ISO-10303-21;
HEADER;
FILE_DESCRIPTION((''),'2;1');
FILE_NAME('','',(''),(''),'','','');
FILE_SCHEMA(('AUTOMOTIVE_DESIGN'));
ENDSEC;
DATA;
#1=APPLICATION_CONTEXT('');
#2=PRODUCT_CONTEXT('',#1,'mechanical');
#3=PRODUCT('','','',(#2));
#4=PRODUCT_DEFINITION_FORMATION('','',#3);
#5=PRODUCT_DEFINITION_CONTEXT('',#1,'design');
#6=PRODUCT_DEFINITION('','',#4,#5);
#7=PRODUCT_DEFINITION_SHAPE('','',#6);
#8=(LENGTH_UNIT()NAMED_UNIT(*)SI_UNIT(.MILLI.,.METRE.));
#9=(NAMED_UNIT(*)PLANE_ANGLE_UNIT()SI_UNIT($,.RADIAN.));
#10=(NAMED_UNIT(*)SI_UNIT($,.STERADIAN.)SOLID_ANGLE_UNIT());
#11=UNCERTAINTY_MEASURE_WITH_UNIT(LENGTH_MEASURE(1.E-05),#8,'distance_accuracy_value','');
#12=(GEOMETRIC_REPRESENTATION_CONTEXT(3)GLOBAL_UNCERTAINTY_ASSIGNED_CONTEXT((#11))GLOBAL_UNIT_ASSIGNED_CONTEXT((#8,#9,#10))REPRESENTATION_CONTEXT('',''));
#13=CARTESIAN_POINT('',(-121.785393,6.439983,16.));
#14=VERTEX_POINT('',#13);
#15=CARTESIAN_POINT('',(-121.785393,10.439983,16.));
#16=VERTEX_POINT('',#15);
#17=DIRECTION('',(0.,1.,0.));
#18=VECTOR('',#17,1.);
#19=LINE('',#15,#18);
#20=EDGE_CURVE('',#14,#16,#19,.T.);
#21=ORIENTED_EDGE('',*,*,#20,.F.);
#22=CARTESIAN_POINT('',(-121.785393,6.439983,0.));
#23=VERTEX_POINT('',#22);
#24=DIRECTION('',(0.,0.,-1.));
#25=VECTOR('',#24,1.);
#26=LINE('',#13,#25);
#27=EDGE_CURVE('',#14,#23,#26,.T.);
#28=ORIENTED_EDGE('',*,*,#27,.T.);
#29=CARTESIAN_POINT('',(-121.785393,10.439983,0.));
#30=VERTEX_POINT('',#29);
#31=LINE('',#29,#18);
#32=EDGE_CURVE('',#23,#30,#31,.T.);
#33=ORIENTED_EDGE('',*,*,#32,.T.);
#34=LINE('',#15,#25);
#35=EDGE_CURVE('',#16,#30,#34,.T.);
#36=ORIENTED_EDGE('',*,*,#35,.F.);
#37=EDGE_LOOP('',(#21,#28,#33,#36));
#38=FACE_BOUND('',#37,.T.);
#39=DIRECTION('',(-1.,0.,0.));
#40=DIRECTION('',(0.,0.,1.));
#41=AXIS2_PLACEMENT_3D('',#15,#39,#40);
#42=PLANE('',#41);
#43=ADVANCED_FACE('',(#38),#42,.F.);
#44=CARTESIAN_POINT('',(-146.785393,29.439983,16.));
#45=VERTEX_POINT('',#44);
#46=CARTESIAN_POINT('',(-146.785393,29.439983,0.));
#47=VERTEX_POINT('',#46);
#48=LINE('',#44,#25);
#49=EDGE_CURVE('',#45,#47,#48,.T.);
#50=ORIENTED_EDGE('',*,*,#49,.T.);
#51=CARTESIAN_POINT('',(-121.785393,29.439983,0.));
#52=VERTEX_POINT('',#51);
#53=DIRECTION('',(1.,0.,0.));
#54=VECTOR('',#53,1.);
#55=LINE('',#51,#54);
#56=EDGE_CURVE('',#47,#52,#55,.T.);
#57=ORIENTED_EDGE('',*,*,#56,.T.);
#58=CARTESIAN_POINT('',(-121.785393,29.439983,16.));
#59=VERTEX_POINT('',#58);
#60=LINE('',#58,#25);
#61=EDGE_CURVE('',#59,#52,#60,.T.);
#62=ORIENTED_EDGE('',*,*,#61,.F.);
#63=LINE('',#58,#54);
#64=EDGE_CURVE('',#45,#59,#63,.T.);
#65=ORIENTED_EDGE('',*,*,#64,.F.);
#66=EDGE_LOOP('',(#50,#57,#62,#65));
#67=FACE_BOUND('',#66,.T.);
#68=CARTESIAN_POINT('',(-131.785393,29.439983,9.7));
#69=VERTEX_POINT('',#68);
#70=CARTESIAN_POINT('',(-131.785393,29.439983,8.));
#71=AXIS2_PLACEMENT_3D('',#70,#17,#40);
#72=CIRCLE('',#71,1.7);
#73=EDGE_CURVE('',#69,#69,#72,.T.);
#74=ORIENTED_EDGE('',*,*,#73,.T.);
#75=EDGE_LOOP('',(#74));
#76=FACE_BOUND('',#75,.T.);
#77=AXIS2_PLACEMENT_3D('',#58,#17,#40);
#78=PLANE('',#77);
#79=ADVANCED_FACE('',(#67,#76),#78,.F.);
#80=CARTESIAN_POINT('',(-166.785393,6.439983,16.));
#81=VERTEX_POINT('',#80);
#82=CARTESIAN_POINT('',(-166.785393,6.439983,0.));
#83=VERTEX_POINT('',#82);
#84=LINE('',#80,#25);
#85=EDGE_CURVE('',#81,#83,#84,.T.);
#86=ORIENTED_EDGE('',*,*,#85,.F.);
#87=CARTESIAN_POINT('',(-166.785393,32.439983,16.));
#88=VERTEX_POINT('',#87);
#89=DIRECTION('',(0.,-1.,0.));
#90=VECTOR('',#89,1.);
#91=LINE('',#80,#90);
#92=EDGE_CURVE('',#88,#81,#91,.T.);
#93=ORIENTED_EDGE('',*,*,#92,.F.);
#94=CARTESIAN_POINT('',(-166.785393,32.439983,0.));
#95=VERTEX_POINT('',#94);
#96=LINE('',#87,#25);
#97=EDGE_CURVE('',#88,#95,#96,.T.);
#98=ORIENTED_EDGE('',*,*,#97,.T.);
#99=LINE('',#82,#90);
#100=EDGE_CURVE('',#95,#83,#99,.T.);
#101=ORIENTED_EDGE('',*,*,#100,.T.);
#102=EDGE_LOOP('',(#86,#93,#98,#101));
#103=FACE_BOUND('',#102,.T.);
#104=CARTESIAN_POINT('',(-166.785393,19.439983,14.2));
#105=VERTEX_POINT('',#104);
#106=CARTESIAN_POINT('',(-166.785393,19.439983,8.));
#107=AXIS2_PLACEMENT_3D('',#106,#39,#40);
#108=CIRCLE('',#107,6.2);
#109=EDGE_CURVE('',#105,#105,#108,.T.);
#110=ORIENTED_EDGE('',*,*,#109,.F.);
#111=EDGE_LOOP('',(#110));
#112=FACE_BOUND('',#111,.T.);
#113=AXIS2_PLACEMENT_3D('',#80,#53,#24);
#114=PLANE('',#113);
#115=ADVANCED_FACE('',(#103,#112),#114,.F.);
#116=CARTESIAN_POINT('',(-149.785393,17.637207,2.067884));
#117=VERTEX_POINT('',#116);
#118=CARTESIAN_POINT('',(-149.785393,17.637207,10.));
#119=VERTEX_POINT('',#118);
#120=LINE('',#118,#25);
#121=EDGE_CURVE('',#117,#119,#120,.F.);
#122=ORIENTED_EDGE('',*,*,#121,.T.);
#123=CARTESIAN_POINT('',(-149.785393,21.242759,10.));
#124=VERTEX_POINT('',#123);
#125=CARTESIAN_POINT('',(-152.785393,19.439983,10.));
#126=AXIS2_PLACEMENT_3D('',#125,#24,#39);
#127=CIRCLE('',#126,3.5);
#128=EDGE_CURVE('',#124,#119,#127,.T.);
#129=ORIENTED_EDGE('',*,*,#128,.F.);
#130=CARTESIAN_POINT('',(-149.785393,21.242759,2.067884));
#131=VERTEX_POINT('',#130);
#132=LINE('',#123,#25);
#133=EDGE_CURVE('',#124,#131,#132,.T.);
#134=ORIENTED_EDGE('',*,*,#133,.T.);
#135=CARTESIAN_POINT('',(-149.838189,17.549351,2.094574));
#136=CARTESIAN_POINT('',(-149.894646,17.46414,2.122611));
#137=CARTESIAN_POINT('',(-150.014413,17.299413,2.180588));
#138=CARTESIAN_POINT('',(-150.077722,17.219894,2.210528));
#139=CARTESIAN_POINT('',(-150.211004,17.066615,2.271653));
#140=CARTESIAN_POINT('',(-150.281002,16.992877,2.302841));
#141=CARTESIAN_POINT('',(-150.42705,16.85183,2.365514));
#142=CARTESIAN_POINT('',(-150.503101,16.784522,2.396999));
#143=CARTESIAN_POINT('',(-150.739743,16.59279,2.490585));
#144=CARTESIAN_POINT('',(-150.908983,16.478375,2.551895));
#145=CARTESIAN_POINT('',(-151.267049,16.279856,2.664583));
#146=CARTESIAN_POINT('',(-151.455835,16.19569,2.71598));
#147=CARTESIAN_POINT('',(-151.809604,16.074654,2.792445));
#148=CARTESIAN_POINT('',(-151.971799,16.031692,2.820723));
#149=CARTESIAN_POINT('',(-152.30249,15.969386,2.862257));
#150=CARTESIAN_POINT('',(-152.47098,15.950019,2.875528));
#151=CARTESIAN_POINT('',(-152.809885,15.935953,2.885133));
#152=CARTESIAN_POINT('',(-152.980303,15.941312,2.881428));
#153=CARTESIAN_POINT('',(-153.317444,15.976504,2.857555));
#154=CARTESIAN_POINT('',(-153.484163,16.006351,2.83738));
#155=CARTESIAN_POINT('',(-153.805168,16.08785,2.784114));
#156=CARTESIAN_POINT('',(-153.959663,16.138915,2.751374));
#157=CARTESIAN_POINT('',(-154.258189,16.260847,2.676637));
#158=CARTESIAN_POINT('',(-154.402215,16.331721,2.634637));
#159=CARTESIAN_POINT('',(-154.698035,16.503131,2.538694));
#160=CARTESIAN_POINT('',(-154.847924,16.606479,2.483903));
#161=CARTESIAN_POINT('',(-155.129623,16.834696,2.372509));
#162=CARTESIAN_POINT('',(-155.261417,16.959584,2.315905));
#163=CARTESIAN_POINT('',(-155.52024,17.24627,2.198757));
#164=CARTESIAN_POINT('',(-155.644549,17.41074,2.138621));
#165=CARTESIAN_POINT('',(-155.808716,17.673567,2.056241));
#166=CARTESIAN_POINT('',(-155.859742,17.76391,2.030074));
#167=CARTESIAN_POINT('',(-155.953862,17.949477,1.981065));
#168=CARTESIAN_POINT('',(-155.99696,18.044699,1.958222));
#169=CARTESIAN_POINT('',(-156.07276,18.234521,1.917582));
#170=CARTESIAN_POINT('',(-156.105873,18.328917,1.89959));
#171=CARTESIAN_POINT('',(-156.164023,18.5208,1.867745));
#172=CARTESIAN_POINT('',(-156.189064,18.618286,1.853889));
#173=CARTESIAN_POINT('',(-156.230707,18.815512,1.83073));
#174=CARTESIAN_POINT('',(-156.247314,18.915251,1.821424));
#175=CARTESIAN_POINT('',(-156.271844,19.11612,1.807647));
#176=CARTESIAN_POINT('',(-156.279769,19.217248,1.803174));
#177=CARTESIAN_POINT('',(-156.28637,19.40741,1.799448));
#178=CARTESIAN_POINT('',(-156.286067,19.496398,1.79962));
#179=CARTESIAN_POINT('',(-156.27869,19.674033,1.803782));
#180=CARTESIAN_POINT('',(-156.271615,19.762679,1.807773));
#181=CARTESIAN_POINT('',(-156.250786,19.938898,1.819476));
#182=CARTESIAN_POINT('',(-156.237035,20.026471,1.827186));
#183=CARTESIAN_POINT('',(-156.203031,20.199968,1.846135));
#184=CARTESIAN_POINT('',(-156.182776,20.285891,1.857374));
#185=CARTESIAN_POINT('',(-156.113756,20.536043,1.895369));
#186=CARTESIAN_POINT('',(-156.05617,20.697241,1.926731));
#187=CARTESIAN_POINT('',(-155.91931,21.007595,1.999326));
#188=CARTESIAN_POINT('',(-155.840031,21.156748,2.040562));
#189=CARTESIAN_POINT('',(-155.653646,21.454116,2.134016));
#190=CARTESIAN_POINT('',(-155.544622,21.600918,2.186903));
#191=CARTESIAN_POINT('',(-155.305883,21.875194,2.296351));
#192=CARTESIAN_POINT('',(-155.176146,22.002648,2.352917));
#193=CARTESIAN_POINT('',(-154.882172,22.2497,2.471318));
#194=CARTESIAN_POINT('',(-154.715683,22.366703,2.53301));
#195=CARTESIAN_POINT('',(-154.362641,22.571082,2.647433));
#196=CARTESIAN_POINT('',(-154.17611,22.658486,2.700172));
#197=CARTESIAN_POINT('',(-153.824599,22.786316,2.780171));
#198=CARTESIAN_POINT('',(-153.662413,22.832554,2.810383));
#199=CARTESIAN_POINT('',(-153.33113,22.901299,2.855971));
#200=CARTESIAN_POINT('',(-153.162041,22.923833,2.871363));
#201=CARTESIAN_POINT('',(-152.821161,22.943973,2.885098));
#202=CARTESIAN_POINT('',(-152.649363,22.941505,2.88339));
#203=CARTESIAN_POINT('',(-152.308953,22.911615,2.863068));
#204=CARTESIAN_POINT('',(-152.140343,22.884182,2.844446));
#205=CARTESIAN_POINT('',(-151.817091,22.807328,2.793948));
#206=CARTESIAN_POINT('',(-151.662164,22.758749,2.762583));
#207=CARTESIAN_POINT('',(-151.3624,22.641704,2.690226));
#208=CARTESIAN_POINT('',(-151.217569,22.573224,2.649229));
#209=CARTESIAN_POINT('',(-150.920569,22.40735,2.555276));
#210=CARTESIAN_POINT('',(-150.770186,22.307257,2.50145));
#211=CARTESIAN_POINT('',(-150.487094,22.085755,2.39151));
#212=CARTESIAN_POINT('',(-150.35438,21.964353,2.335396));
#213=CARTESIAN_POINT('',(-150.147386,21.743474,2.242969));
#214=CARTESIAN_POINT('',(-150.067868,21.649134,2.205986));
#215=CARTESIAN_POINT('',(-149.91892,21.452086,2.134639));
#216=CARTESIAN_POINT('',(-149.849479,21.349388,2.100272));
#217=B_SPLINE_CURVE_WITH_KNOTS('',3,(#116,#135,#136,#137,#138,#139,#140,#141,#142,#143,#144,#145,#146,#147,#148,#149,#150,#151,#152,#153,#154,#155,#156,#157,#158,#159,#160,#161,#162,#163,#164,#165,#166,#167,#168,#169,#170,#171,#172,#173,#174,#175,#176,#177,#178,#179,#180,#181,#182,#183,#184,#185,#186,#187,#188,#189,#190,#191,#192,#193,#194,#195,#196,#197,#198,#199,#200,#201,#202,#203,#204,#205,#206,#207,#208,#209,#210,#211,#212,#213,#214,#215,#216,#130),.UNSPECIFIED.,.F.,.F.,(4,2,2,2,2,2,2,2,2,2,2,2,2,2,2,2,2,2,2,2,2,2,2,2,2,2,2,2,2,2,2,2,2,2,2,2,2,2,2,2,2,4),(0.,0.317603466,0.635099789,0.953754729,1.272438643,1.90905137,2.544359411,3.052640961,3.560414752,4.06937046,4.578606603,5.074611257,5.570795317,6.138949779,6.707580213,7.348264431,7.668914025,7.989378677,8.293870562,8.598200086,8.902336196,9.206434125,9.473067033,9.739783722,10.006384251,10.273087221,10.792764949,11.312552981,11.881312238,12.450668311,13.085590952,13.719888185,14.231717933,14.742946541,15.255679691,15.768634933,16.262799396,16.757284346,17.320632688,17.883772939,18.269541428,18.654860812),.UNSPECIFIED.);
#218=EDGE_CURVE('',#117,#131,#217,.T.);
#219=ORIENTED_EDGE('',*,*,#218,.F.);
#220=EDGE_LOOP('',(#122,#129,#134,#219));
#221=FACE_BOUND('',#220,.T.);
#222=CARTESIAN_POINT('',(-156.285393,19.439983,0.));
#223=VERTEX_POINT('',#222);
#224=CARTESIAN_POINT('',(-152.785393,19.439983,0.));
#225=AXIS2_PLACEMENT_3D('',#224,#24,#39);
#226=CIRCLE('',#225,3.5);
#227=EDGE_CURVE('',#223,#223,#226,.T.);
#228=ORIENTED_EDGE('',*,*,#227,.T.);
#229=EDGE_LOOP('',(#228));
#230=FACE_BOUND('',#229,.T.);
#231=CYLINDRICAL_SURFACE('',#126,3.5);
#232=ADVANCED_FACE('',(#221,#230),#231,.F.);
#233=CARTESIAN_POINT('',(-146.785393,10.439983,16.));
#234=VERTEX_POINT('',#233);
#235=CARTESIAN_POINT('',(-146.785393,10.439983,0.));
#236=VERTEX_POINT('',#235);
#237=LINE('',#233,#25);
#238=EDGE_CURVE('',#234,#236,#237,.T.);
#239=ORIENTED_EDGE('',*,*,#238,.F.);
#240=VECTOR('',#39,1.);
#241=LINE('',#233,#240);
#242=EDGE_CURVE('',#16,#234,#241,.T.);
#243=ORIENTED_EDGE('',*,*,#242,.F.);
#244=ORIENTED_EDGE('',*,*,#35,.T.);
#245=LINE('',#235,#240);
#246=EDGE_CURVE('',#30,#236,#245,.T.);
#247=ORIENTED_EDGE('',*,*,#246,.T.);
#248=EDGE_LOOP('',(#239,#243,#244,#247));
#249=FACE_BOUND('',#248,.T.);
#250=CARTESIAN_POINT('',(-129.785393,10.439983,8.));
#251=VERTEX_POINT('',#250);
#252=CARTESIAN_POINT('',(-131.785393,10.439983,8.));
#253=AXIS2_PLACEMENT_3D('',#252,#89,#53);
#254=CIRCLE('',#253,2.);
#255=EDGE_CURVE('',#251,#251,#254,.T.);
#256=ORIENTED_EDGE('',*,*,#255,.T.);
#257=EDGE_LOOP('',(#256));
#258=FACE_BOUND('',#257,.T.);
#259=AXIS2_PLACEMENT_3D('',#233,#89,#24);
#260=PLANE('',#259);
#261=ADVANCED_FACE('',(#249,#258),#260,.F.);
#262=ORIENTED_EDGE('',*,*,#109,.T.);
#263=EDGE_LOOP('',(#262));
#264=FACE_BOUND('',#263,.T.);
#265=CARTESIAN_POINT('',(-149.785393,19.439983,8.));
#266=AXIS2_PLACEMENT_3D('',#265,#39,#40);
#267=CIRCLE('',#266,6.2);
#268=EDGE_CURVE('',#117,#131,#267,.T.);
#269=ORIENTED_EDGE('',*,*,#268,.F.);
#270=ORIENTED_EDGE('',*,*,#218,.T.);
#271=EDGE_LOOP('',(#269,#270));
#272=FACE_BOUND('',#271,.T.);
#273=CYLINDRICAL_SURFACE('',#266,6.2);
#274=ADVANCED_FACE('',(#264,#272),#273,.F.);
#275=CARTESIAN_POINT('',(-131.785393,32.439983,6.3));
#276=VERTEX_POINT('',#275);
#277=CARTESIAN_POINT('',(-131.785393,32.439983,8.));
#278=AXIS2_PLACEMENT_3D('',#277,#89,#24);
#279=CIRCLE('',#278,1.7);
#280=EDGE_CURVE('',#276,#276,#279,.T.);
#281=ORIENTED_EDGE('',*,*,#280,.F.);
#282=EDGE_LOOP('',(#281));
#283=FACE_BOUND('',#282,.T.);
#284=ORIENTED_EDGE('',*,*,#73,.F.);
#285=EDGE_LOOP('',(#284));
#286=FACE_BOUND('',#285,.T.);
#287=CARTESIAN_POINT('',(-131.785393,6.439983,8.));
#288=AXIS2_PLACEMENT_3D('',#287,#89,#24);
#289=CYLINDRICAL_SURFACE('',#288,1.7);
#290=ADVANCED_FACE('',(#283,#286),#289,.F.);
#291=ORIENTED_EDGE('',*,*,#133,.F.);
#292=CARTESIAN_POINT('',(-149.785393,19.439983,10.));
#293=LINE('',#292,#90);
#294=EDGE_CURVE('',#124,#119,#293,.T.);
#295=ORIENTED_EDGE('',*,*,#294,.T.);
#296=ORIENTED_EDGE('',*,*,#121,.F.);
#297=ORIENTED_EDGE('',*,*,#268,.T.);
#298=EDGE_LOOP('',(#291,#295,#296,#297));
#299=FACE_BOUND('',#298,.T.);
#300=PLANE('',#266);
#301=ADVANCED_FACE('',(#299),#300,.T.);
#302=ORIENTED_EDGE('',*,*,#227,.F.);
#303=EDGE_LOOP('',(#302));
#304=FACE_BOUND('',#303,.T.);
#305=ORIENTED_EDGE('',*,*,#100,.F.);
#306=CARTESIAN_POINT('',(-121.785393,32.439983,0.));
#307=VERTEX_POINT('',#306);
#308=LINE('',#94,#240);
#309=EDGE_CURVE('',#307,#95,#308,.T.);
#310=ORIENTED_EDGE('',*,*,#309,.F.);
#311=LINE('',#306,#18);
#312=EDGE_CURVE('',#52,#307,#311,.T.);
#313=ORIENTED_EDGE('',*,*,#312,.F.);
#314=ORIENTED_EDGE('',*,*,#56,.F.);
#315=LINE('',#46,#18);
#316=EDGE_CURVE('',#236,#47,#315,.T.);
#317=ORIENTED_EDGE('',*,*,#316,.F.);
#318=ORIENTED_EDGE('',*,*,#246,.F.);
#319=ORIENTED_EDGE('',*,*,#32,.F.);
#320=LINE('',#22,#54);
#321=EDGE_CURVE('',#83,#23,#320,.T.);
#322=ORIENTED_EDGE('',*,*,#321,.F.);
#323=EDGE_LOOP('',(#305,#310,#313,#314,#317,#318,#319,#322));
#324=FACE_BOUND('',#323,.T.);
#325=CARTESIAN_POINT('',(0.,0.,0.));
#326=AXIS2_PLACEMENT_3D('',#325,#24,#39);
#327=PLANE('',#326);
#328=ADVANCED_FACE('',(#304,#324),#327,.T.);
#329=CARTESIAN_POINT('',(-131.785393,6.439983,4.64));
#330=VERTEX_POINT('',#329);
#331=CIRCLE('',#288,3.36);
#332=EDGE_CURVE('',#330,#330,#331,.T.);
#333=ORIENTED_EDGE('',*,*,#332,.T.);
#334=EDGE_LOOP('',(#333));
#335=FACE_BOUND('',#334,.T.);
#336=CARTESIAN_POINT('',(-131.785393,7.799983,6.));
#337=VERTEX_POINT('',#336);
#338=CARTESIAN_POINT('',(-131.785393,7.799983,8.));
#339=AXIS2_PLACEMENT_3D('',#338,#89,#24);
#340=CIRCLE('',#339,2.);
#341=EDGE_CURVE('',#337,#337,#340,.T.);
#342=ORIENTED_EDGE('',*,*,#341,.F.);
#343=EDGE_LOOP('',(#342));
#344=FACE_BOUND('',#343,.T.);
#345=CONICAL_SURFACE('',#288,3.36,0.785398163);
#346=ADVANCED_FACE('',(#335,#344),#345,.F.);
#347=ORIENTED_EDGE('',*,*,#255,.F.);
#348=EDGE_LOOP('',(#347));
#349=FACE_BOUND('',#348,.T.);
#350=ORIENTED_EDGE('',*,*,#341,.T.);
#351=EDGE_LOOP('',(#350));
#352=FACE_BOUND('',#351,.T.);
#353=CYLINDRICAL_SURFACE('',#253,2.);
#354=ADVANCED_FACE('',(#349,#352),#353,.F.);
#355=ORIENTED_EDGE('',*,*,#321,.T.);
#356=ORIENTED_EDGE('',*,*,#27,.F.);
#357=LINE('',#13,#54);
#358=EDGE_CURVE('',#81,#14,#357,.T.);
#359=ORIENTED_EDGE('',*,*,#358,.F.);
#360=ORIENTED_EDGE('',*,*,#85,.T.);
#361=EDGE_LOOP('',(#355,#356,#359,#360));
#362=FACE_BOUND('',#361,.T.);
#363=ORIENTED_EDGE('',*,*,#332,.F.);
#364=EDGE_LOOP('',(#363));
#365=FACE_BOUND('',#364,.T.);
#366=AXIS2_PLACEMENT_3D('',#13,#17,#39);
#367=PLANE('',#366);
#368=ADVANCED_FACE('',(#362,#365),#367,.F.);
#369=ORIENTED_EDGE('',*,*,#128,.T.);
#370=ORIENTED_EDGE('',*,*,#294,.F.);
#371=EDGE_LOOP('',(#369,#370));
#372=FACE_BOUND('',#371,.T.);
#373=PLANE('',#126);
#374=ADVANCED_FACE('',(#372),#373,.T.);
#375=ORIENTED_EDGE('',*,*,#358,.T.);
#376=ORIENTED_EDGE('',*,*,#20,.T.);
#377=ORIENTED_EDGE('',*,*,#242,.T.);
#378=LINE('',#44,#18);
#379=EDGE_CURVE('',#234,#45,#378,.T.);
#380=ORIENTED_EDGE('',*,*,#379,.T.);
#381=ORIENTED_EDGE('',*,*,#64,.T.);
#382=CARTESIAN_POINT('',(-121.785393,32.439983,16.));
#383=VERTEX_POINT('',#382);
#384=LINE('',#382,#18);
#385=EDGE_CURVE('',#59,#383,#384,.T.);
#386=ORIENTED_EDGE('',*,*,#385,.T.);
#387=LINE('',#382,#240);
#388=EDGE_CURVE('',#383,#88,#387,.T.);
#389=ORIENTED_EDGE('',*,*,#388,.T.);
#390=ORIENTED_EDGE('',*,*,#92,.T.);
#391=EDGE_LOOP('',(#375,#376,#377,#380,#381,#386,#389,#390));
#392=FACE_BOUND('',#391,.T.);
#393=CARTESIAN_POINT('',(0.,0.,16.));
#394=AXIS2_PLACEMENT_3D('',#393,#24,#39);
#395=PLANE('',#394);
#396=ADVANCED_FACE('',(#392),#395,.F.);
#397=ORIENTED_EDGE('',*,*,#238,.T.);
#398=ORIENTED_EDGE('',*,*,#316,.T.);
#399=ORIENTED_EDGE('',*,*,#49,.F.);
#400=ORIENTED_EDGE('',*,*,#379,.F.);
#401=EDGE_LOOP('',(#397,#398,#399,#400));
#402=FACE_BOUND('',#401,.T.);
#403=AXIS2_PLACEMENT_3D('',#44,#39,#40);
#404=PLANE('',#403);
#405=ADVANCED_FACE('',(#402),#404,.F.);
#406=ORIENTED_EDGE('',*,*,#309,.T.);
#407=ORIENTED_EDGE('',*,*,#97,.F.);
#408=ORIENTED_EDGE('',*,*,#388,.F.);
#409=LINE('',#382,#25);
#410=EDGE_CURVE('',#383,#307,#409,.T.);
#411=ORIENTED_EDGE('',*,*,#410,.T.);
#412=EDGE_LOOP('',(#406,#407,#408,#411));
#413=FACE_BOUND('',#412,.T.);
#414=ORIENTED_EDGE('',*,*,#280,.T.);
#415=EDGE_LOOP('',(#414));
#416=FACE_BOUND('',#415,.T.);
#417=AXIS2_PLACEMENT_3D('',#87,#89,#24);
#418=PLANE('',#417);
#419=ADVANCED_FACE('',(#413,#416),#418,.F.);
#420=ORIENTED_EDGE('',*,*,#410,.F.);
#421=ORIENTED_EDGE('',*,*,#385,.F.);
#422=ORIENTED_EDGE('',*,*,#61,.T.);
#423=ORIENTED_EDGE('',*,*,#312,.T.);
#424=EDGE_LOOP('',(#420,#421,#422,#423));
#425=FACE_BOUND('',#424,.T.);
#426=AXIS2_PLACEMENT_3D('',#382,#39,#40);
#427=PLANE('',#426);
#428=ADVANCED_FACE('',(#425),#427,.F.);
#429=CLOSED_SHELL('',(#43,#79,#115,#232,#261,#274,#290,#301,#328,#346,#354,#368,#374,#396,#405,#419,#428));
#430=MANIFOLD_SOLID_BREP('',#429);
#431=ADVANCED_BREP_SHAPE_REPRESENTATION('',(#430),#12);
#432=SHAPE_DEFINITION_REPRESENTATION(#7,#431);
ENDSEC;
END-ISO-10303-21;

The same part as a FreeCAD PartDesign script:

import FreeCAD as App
import Part
import Sketcher


def add_polygon(sketch, points):
    """Adds a closed chain of lines whose ends are joined by coincident constraints."""
    first, n = sketch.GeometryCount, len(points)
    for a, b in zip(points, points[1:] + points[:1]):
        sketch.addGeometry(Part.LineSegment(App.Vector(*a, 0), App.Vector(*b, 0)), False)
    for i in range(n):
        sketch.addConstraint(Sketcher.Constraint("Coincident", first + i, 2, first + (i + 1) % n, 1))

doc = App.newDocument("Part")
body = doc.addObject("PartDesign::Body", "Body")

# Sketch on XY plane
sketch1 = doc.addObject("Sketcher::SketchObject", "Sketch")
body.addObject(sketch1)
sketch1.AttachmentSupport = (doc.XY_Plane, [""])
sketch1.MapMode = "FlatFace"
add_polygon(sketch1, [(-121.8, 32.4), (-166.8, 32.4), (-166.8, 6.4), (-121.8, 6.4), (-121.8, 10.4), (-146.8, 10.4), (-146.8, 29.4), (-121.8, 29.4)])  # lines 0-7
sketch1.addConstraint([
    Sketcher.Constraint("Horizontal", 0),
    Sketcher.Constraint("Vertical", 1),
    Sketcher.Constraint("Horizontal", 2),
    Sketcher.Constraint("Vertical", 3),
    Sketcher.Constraint("Horizontal", 4),
    Sketcher.Constraint("Vertical", 5),
    Sketcher.Constraint("Horizontal", 6),
    Sketcher.Constraint("Vertical", 7),
    Sketcher.Constraint("Vertical", 3, 2, 6, 2),
    Sketcher.Constraint("DistanceX", 0, 2, 0, 1, 45.0),
    Sketcher.Constraint("DistanceX", 4, 2, 4, 1, 25.0),
    Sketcher.Constraint("DistanceY", 1, 2, 1, 1, 26.0),
    Sketcher.Constraint("DistanceY", 3, 1, 3, 2, 4.0),
    Sketcher.Constraint("DistanceY", 5, 1, 5, 2, 19.0),
    Sketcher.Constraint("DistanceX", 0, 2, -1, 1, 166.785393),
    Sketcher.Constraint("DistanceY", -1, 1, 0, 2, 32.439983),
])
pad1 = doc.addObject("PartDesign::Pad", "Pad")
body.addObject(pad1)
pad1.Profile = sketch1
pad1.Length = 16

# Sketch on YZ plane
sketch2 = doc.addObject("Sketcher::SketchObject", "Sketch001")
body.addObject(sketch2)
sketch2.AttachmentSupport = (doc.YZ_Plane, [""])
sketch2.MapMode = "FlatFace"
sketch2.AttachmentOffset = App.Placement(App.Vector(0, 0, -166.785393), App.Rotation())
sketch2.addGeometry(Part.Circle(App.Vector(19, 8, 0), App.Vector(0, 0, 1), 6), False)
sketch2.addConstraint([
    Sketcher.Constraint("Diameter", 0, 12.4),
    Sketcher.Constraint("DistanceY", -1, 1, 0, 3, 8.0),
    Sketcher.Constraint("DistanceX", -1, 1, 0, 3, 19.439983),
])
pocket1 = doc.addObject("PartDesign::Pocket", "Pocket")
body.addObject(pocket1)
pocket1.Profile = sketch2
pocket1.Length = 17
pocket1.Reversed = True

# Sketch on XZ plane
sketch3 = doc.addObject("Sketcher::SketchObject", "Sketch002")
body.addObject(sketch3)
sketch3.AttachmentSupport = (doc.XZ_Plane, [""])
sketch3.MapMode = "FlatFace"
sketch3.AttachmentOffset = App.Placement(App.Vector(0, 0, -6.439983), App.Rotation())
sketch3.addGeometry(Part.Circle(App.Vector(-131.8, 8, 0), App.Vector(0, 0, 1), 2), False)
sketch3.addConstraint([
    Sketcher.Constraint("Diameter", 0, 4.0),
    Sketcher.Constraint("DistanceY", -1, 1, 0, 3, 8.0),
    Sketcher.Constraint("DistanceX", 0, 3, -1, 1, 131.785393),
])
pocket2 = doc.addObject("PartDesign::Pocket", "Pocket001")
body.addObject(pocket2)
pocket2.Profile = sketch3
pocket2.Length = 4

# Sketch on XZ plane
sketch4 = doc.addObject("Sketcher::SketchObject", "Sketch003")
body.addObject(sketch4)
sketch4.AttachmentSupport = (doc.XZ_Plane, [""])
sketch4.MapMode = "FlatFace"
sketch4.AttachmentOffset = App.Placement(App.Vector(0, 0, -6.439983), App.Rotation())
sketch4.addGeometry(Part.Circle(App.Vector(-131.8, 8, 0), App.Vector(0, 0, 1), 1.7), False)
sketch4.addConstraint([
    Sketcher.Constraint("Diameter", 0, 3.4),
    Sketcher.Constraint("DistanceY", -1, 1, 0, 3, 8.0),
    Sketcher.Constraint("DistanceX", 0, 3, -1, 1, 131.785393),
])
doc.recompute()
hole = doc.addObject("PartDesign::Hole", "Hole")
body.addObject(hole)
hole.Profile = sketch4
hole.ThreadType = "None"
hole.Diameter = 3.4
hole.DepthType = "ThroughAll"
hole.HoleCutType = "Countersink"
hole.HoleCutDiameter = 6.72
hole.HoleCutCountersinkAngle = 90

# Sketch on XY plane
sketch5 = doc.addObject("Sketcher::SketchObject", "Sketch004")
body.addObject(sketch5)
sketch5.AttachmentSupport = (doc.XY_Plane, [""])
sketch5.MapMode = "FlatFace"
sketch5.addGeometry(Part.Circle(App.Vector(-152.8, 19.4, 0), App.Vector(0, 0, 1), 3.5), False)
sketch5.addConstraint([
    Sketcher.Constraint("Diameter", 0, 7.0),
    Sketcher.Constraint("DistanceX", 0, 3, -1, 1, 152.785393),
    Sketcher.Constraint("DistanceY", -1, 1, 0, 3, 19.439983),
])
pocket3 = doc.addObject("PartDesign::Pocket", "Pocket002")
body.addObject(pocket3)
pocket3.Profile = sketch5
pocket3.Length = 10
pocket3.Reversed = True

doc.recompute()
